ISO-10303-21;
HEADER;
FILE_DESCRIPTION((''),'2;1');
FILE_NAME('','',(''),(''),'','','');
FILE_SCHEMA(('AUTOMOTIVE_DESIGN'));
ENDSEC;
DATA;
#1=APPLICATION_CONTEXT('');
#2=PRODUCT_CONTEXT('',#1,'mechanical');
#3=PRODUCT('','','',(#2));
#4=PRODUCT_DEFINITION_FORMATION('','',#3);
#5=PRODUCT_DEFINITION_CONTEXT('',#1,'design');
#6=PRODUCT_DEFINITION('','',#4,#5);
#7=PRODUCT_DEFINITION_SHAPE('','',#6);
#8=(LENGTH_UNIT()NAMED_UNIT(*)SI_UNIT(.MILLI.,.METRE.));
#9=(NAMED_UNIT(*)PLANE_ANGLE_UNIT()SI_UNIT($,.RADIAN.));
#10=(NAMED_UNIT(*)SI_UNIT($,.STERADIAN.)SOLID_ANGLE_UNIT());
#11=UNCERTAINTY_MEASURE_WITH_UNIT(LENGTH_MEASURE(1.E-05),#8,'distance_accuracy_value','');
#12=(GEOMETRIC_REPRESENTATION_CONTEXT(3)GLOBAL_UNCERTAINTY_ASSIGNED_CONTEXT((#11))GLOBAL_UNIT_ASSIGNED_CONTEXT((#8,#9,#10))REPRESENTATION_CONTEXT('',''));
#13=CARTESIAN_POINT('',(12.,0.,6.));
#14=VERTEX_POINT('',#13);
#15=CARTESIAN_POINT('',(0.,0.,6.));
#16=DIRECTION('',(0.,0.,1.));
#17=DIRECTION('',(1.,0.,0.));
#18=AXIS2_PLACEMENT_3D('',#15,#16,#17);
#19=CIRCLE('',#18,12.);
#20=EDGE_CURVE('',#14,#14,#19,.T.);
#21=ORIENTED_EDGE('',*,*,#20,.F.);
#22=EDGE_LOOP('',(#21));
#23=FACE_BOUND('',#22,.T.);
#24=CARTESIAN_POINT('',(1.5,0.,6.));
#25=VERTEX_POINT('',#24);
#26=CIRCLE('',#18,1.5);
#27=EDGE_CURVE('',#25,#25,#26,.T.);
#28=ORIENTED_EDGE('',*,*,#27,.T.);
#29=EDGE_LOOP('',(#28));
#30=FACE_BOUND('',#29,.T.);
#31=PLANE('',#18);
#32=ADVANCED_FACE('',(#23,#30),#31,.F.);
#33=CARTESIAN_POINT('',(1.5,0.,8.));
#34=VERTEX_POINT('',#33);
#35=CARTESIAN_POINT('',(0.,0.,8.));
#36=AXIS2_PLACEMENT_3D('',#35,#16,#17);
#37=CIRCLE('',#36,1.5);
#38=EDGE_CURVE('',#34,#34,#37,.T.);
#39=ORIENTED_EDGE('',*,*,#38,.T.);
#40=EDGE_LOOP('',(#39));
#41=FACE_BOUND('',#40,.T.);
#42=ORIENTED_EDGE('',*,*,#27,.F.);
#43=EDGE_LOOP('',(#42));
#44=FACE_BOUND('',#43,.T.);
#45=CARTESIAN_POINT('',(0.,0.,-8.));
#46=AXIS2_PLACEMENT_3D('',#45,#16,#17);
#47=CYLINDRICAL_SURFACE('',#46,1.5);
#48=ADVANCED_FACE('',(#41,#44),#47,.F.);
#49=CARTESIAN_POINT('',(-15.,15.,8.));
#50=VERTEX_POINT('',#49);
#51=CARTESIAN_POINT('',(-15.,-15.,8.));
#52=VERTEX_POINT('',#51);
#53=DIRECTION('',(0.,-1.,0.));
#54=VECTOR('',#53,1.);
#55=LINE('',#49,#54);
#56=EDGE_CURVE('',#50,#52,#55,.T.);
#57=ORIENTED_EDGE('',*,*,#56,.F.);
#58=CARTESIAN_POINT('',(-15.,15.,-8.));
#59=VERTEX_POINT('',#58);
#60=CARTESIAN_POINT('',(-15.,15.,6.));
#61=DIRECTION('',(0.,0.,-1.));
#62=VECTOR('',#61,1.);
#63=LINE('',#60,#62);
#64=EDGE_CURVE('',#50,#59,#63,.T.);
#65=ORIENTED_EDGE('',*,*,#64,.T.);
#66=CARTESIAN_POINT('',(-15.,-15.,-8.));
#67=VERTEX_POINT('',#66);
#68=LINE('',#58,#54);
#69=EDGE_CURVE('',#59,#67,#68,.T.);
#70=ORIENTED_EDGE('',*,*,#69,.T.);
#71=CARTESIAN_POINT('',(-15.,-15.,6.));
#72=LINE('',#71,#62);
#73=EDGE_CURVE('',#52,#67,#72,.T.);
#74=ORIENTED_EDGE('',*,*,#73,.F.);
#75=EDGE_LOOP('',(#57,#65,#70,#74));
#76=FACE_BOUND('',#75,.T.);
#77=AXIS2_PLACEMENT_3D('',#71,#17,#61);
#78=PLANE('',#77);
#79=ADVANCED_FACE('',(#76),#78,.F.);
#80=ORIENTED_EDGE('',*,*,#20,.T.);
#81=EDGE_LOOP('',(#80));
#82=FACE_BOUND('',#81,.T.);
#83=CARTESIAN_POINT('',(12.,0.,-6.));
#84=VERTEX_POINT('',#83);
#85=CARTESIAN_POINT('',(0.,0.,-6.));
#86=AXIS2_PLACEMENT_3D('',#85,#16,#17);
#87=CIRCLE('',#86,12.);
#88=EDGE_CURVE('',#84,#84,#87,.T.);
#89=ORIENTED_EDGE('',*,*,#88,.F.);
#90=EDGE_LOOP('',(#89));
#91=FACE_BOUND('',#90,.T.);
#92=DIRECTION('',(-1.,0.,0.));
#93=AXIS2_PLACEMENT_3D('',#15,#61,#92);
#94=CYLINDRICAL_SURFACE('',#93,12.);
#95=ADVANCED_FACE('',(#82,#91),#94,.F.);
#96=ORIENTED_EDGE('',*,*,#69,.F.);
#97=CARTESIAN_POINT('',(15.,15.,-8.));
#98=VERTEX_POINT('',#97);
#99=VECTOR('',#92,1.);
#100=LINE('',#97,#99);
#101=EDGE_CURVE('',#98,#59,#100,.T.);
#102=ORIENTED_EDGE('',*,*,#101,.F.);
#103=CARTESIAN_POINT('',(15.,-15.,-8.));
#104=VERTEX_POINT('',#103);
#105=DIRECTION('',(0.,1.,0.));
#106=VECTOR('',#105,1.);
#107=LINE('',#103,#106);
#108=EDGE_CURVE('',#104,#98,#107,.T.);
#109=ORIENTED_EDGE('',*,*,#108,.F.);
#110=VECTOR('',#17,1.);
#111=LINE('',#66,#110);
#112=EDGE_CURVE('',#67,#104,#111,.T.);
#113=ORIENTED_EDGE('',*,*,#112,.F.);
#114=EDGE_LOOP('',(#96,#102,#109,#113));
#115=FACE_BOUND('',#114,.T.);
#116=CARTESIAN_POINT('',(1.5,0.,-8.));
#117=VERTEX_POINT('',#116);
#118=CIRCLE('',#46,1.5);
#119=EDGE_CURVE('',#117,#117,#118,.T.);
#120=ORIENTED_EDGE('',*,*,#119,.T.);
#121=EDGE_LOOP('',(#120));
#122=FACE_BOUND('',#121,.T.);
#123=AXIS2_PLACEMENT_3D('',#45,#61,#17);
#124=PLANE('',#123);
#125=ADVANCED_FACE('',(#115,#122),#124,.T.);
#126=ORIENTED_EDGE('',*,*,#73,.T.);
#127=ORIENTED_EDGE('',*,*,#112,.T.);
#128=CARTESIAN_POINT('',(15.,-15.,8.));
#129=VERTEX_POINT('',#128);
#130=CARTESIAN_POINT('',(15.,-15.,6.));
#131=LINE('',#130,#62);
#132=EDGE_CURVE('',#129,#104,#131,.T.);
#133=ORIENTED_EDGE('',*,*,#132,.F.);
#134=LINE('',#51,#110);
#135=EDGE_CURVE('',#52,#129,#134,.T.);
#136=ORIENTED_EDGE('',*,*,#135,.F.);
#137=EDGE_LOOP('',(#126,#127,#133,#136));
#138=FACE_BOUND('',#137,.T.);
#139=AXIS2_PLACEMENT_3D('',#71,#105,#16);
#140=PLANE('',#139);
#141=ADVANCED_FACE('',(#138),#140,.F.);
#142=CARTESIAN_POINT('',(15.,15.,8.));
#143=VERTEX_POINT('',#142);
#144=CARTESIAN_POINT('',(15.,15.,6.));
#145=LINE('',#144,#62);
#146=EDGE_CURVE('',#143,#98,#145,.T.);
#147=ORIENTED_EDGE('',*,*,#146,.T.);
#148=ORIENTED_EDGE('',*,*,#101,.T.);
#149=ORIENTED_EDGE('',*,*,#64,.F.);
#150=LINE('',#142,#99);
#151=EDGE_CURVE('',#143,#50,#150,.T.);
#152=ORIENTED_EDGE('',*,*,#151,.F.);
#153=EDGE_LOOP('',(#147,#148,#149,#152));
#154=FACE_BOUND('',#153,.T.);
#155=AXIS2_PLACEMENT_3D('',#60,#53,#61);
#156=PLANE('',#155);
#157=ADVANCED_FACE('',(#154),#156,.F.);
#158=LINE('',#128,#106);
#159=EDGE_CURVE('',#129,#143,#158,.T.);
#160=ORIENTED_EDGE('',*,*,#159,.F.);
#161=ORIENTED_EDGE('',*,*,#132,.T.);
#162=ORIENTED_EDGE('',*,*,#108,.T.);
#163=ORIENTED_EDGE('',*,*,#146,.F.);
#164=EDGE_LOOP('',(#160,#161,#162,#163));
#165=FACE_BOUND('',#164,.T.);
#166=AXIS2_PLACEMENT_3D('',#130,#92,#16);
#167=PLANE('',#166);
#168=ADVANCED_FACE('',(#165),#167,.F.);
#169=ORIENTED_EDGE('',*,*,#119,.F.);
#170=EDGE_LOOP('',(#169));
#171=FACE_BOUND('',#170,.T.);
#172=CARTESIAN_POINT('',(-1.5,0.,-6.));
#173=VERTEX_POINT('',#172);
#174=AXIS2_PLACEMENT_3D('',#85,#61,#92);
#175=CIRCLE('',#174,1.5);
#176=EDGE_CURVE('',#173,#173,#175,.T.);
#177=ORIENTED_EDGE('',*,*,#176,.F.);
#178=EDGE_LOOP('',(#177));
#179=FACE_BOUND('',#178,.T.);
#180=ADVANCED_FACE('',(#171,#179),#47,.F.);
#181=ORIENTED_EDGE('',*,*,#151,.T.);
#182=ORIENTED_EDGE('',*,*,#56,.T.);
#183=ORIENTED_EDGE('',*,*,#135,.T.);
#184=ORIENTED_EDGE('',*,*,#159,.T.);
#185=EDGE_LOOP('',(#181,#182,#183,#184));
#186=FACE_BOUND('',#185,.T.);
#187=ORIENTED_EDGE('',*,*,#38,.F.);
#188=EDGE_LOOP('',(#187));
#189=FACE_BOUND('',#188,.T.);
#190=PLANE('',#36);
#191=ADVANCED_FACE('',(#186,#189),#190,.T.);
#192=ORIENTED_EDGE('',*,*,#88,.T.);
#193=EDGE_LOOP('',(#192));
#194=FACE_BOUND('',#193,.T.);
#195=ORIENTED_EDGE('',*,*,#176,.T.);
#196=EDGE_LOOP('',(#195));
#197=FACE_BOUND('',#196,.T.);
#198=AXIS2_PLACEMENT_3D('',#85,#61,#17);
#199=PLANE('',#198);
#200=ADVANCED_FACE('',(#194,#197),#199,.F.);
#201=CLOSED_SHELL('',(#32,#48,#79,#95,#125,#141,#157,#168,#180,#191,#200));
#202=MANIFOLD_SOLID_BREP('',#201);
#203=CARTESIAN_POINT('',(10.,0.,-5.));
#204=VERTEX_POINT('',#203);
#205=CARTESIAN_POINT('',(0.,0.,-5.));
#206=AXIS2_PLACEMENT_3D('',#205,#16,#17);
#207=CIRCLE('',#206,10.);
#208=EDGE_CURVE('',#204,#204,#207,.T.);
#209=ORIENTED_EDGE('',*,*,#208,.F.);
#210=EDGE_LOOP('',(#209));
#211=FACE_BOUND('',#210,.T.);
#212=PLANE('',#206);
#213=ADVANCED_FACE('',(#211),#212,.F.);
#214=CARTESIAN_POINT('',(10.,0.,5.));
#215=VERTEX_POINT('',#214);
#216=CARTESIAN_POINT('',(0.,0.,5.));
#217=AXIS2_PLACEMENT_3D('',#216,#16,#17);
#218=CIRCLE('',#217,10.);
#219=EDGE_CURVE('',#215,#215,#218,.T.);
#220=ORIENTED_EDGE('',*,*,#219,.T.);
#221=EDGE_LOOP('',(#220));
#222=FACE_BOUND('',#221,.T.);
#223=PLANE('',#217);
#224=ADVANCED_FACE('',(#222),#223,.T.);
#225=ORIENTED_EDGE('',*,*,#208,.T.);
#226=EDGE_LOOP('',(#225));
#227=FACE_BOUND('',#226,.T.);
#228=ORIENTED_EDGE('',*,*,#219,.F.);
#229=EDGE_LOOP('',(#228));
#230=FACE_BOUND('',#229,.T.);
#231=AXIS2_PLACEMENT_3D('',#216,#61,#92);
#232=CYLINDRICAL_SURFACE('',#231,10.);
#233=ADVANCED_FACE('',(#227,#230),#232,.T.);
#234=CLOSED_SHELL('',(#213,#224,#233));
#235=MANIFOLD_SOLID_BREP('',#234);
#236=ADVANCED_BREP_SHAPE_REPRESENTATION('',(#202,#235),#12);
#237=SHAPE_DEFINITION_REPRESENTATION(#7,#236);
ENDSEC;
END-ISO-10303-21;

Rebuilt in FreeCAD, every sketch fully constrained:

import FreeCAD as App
import Part
import Sketcher

V = App.Vector

doc = App.newDocument("Part")
body = doc.addObject("PartDesign::Body", "Body")

# Sketch on XY plane
sketch1 = body.newObject("Sketcher::SketchObject", "Sketch")
sketch1.AttachmentSupport = (doc.getObject("XY_Plane"), [""])
sketch1.MapMode = "FlatFace"
sketch1.addGeometry(Part.Circle(V(0, 0, 0), V(0, 0, 1), 10), False)
sketch1.addConstraint([
    Sketcher.Constraint("Coincident", 0, 3, -1, 1),
    Sketcher.Constraint("Diameter", 0, 20.0),
])
pad1 = body.newObject("PartDesign::Pad", "Pad")
pad1.Profile = sketch1
pad1.Length = 10
pad1.Midplane = True
body2 = doc.addObject("PartDesign::Body", "Body001")

# Sketch on XY plane
sketch2 = body2.newObject("Sketcher::SketchObject", "Sketch001")
sketch2.AttachmentSupport = (doc.getObject("XY_Plane001"), [""])
sketch2.MapMode = "FlatFace"
sketch2.addGeometry([
    Part.LineSegment(V(-15, 15, 0), V(-15, -15, 0)),  # 0
    Part.LineSegment(V(-15, -15, 0), V(15, -15, 0)),  # 1
    Part.LineSegment(V(15, -15, 0), V(15, 15, 0)),  # 2
    Part.LineSegment(V(15, 15, 0), V(-15, 15, 0)),  # 3
    Part.Circle(V(0, 0, 0), V(0, 0, 1), 12),  # 4
], False)
sketch2.addConstraint([
    Sketcher.Constraint("Coincident", 0, 2, 1, 1),
    Sketcher.Constraint("Coincident", 1, 2, 2, 1),
    Sketcher.Constraint("Coincident", 2, 2, 3, 1),
    Sketcher.Constraint("Coincident", 3, 2, 0, 1),
    Sketcher.Constraint("Vertical", 0),
    Sketcher.Constraint("Horizontal", 1),
    Sketcher.Constraint("Vertical", 2),
    Sketcher.Constraint("Horizontal", 3),
    Sketcher.Constraint("Coincident", 4, 3, -1, 1),
    Sketcher.Constraint("Symmetric", 0, 2, 2, 2, -1, 1),
    Sketcher.Constraint("Equal", 3, 0),
    Sketcher.Constraint("Diameter", 4, 24.0),
    Sketcher.Constraint("DistanceX", 1, 1, 1, 2, 30.0),
])
pad2 = body2.newObject("PartDesign::Pad", "Pad001")
pad2.Profile = sketch2
pad2.Length = 12
pad2.Midplane = True

# Sketch on XY plane
sketch3 = body2.newObject("Sketcher::SketchObject", "Sketch002")
sketch3.AttachmentSupport = (doc.getObject("XY_Plane001"), [""])
sketch3.MapMode = "FlatFace"
sketch3.AttachmentOffset = App.Placement(V(0, 0, 6), App.Rotation())
sketch3.addGeometry([
    Part.LineSegment(V(-15, 15, 0), V(-15, -15, 0)),
    Part.LineSegment(V(-15, -15, 0), V(15, -15, 0)),
    Part.LineSegment(V(15, -15, 0), V(15, 15, 0)),
    Part.LineSegment(V(15, 15, 0), V(-15, 15, 0)),
], False)
sketch3.addConstraint([
    Sketcher.Constraint("Coincident", 0, 2, 1, 1),
    Sketcher.Constraint("Coincident", 1, 2, 2, 1),
    Sketcher.Constraint("Coincident", 2, 2, 3, 1),
    Sketcher.Constraint("Coincident", 3, 2, 0, 1),
    Sketcher.Constraint("Vertical", 0),
    Sketcher.Constraint("Horizontal", 1),
    Sketcher.Constraint("Vertical", 2),
    Sketcher.Constraint("Horizontal", 3),
    Sketcher.Constraint("Symmetric", 0, 2, 2, 2, -1, 1),
    Sketcher.Constraint("Equal", 3, 0),
    Sketcher.Constraint("DistanceX", 1, 1, 1, 2, 30.0),
])
pad3 = body2.newObject("PartDesign::Pad", "Pad002")
pad3.Profile = sketch3
pad3.Length = 2
doc.recompute()

mirrored = body2.newObject("PartDesign::Mirrored", "Mirrored")
mirrored.Originals = [pad3]
mirrored.MirrorPlane = (doc.getObject("XY_Plane001"), [""])
body2.Tip = mirrored

# Sketch on XY plane
sketch4 = body2.newObject("Sketcher::SketchObject", "Sketch003")
sketch4.AttachmentSupport = (doc.getObject("XY_Plane001"), [""])
sketch4.MapMode = "FlatFace"
sketch4.AttachmentOffset = App.Placement(V(0, 0, 8), App.Rotation())
sketch4.addGeometry(Part.Circle(V(0, 0, 0), V(0, 0, 1), 1.5), False)
sketch4.addConstraint([
    Sketcher.Constraint("Coincident", 0, 3, -1, 1),
    Sketcher.Constraint("Diameter", 0, 3.0),
])
pocket1 = body2.newObject("PartDesign::Pocket", "Pocket")
pocket1.Profile = sketch4
pocket1.Type = "ThroughAll"

doc.recompute()
